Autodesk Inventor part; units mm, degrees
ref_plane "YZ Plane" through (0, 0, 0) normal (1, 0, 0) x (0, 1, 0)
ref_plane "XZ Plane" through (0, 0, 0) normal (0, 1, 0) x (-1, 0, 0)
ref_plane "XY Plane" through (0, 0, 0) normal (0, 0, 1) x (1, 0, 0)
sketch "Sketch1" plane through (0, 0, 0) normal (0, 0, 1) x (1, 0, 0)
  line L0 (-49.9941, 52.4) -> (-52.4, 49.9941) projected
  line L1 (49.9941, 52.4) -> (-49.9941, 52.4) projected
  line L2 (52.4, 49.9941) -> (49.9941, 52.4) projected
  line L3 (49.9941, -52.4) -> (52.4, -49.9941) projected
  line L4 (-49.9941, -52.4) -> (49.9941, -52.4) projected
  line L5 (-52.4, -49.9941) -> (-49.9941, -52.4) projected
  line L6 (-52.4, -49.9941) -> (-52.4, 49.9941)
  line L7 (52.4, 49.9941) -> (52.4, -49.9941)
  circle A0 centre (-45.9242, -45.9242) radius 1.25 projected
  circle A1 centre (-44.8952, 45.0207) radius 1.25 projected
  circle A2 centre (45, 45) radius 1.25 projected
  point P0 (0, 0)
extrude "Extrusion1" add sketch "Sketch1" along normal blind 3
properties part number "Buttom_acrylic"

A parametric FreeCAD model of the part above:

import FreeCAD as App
import Part
import Sketcher

V = App.Vector
Q = App.Units.Quantity

doc = App.newDocument("Part")
params = doc.addObject("Spreadsheet::Sheet", "Params")
for row, (alias, value) in enumerate([
    ("sketch1_diameter", "2.5 mm"),
    ("pad1_length", "3 mm"),
], start=1):
    params.set(f"A{row}", alias)
    params.set(f"B{row}", "=" + value)
    params.setAlias(f"B{row}", alias)

body = doc.addObject("PartDesign::Body", "Body")

sketch1 = body.newObject("Sketcher::SketchObject", "Sketch")
sketch1.AttachmentSupport = (doc.getObject("XY_Plane"), [""])
sketch1.MapMode = "FlatFace"
sketch1.addGeometry(Part.LineSegment(V(50, 52.4, 0), V(-50, 52.4, 0)), False)
sketch1.addGeometry(Part.LineSegment(V(-50, 52.4, 0), V(-52.4, 50, 0)), False)
sketch1.addGeometry(Part.LineSegment(V(-52.4, 50, 0), V(-52.4, -50, 0)), False)
sketch1.addGeometry(Part.LineSegment(V(-52.4, -50, 0), V(-50, -52.4, 0)), False)
sketch1.addGeometry(Part.LineSegment(V(-50, -52.4, 0), V(50, -52.4, 0)), False)
sketch1.addGeometry(Part.LineSegment(V(50, -52.4, 0), V(52.4, -50, 0)), False)
sketch1.addGeometry(Part.LineSegment(V(52.4, -50, 0), V(52.4, 50, 0)), False)
sketch1.addGeometry(Part.LineSegment(V(52.4, 50, 0), V(50, 52.4, 0)), False)
sketch1.addGeometry(Part.Circle(V(-45.9, -45.9, 0), V(0, 0, 1), 1.2), False)
sketch1.addGeometry(Part.Circle(V(-44.9, 45, 0), V(0, 0, 1), 1.2), False)
sketch1.addGeometry(Part.Circle(V(45, 45, 0), V(0, 0, 1), 1.2), False)
sketch1.addConstraint(Sketcher.Constraint("Coincident", 0, 2, 1, 1))
sketch1.addConstraint(Sketcher.Constraint("Coincident", 1, 2, 2, 1))
sketch1.addConstraint(Sketcher.Constraint("Coincident", 2, 2, 3, 1))
sketch1.addConstraint(Sketcher.Constraint("Coincident", 3, 2, 4, 1))
sketch1.addConstraint(Sketcher.Constraint("Coincident", 4, 2, 5, 1))
sketch1.addConstraint(Sketcher.Constraint("Coincident", 5, 2, 6, 1))
sketch1.addConstraint(Sketcher.Constraint("Coincident", 6, 2, 7, 1))
sketch1.addConstraint(Sketcher.Constraint("Coincident", 7, 2, 0, 1))
sketch1.addConstraint(Sketcher.Constraint("Horizontal", 0))
sketch1.addConstraint(Sketcher.Constraint("Vertical", 2))
sketch1.addConstraint(Sketcher.Constraint("Horizontal", 4))
sketch1.addConstraint(Sketcher.Constraint("Vertical", 6))
sketch1.addConstraint(Sketcher.Constraint("Equal", 8, 9))
sketch1.addConstraint(Sketcher.Constraint("Equal", 9, 10))
sketch1.addConstraint(Sketcher.Constraint("Symmetric", 0, 2, 4, 2, -1, 1))
sketch1.addConstraint(Sketcher.Constraint("Symmetric", 1, 2, 5, 2, -1, 1))
sketch1.addConstraint(Sketcher.Constraint("Perpendicular", 1, 3))
sketch1.addConstraint(Sketcher.Constraint("Perpendicular", 5, 7))
sketch1.addConstraint(Sketcher.Constraint("Horizontal", 2, 2, 5, 2))
sketch1.addConstraint(Sketcher.Constraint("Horizontal", 1, 2, 6, 2))
sketch1.addConstraint(Sketcher.Constraint("Vertical", 0, 2, 3, 2))
sketch1.addConstraint(Sketcher.Constraint("Equal", 4, 2))
sketch1.addConstraint(Sketcher.Constraint("Diameter", 8, Q("2.5 mm")))
sketch1.addConstraint(Sketcher.Constraint("DistanceX", -1, 1, 10, 3, Q("45 mm")))
sketch1.addConstraint(Sketcher.Constraint("DistanceY", -1, 1, 10, 3, Q("45 mm")))
sketch1.addConstraint(Sketcher.Constraint("DistanceY", -1, 1, 0, 2, Q("52.4 mm")))
sketch1.addConstraint(Sketcher.Constraint("DistanceX", 0, 2, 8, 3, Q("4.07 mm")))
sketch1.addConstraint(Sketcher.Constraint("DistanceY", 2, 2, 8, 3, Q("4.07 mm")))
sketch1.addConstraint(Sketcher.Constraint("DistanceX", 0, 2, 0, 1, Q("99.9882 mm")))
sketch1.addConstraint(Sketcher.Constraint("DistanceX", 8, 3, 9, 3, Q("1.029 mm")))
sketch1.addConstraint(Sketcher.Constraint("DistanceY", 8, 3, 9, 3, Q("90.945 mm")))
sketch1.setExpression("Constraints[22]", "Params.sketch1_diameter")
pad1 = body.newObject("PartDesign::Pad", "Pad")
pad1.Profile = sketch1
pad1.setExpression("Length", "Params.pad1_length")

doc.recompute()
